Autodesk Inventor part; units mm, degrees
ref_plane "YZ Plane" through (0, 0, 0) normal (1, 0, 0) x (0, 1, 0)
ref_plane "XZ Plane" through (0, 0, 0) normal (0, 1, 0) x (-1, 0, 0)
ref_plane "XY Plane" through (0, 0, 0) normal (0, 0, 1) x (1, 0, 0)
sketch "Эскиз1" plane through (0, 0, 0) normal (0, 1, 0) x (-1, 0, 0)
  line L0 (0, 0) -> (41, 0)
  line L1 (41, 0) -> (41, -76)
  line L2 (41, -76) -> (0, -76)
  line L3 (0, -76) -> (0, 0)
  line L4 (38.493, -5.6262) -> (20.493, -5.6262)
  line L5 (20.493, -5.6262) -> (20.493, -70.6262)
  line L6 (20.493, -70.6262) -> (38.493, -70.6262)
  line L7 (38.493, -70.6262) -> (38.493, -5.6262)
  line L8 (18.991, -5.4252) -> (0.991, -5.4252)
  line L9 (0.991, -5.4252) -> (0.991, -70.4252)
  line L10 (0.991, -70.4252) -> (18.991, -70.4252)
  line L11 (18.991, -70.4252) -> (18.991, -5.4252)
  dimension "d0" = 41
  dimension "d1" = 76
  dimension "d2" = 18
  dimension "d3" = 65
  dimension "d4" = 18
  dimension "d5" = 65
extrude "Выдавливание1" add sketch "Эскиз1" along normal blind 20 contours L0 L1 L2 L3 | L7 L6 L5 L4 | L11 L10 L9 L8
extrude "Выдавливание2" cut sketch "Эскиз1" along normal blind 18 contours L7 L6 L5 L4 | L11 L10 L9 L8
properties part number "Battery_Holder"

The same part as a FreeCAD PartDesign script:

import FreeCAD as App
import Part
import Sketcher

V = App.Vector

doc = App.newDocument("Part")
body = doc.addObject("PartDesign::Body", "Body")

# Sketch on XZ plane
sketch1 = body.newObject("Sketcher::SketchObject", "Sketch")
sketch1.AttachmentSupport = (doc.getObject("XZ_Plane"), [""])
sketch1.MapMode = "FlatFace"
sketch1.addGeometry(Part.LineSegment(V(-41, 0, 0), V(0, 0, 0)), False)
sketch1.addGeometry(Part.LineSegment(V(0, 0, 0), V(0, -76, 0)), False)
sketch1.addGeometry(Part.LineSegment(V(0, -76, 0), V(-41, -76, 0)), False)
sketch1.addGeometry(Part.LineSegment(V(-41, -76, 0), V(-41, 0, 0)), False)
sketch1.addConstraint(Sketcher.Constraint("Coincident", 0, 2, 1, 1))
sketch1.addConstraint(Sketcher.Constraint("Coincident", 1, 2, 2, 1))
sketch1.addConstraint(Sketcher.Constraint("Coincident", 2, 2, 3, 1))
sketch1.addConstraint(Sketcher.Constraint("Coincident", 3, 2, 0, 1))
sketch1.addConstraint(Sketcher.Constraint("Horizontal", 0))
sketch1.addConstraint(Sketcher.Constraint("Vertical", 1))
sketch1.addConstraint(Sketcher.Constraint("Horizontal", 2))
sketch1.addConstraint(Sketcher.Constraint("Vertical", 3))
sketch1.addConstraint(Sketcher.Constraint("Coincident", 0, 2, -1, 1))
sketch1.addConstraint(Sketcher.Constraint("DistanceX", 0, 1, 0, 2, 41.0))
sketch1.addConstraint(Sketcher.Constraint("DistanceY", 1, 2, 1, 1, 76.0))
pad1 = body.newObject("PartDesign::Pad", "Pad")
pad1.Profile = sketch1
pad1.Length = 20
pad1.Reversed = True

# Sketch on XZ plane
sketch2 = body.newObject("Sketcher::SketchObject", "Sketch001")
sketch2.AttachmentSupport = (doc.getObject("XZ_Plane"), [""])
sketch2.MapMode = "FlatFace"
sketch2.addGeometry(Part.LineSegment(V(-38.493, -70.6262, 0), V(-38.493, -5.6262, 0)), False)
sketch2.addGeometry(Part.LineSegment(V(-38.493, -5.6262, 0), V(-20.493, -5.6262, 0)), False)
sketch2.addGeometry(Part.LineSegment(V(-20.493, -5.6262, 0), V(-20.493, -70.6262, 0)), False)
sketch2.addGeometry(Part.LineSegment(V(-20.493, -70.6262, 0), V(-38.493, -70.6262, 0)), False)
sketch2.addGeometry(Part.LineSegment(V(-18.991, -70.4252, 0), V(-18.991, -5.4252, 0)), False)
sketch2.addGeometry(Part.LineSegment(V(-18.991, -5.4252, 0), V(-0.991, -5.4252, 0)), False)
sketch2.addGeometry(Part.LineSegment(V(-0.991, -5.4252, 0), V(-0.991, -70.4252, 0)), False)
sketch2.addGeometry(Part.LineSegment(V(-0.991, -70.4252, 0), V(-18.991, -70.4252, 0)), False)
sketch2.addConstraint(Sketcher.Constraint("Coincident", 0, 2, 1, 1))
sketch2.addConstraint(Sketcher.Constraint("Coincident", 1, 2, 2, 1))
sketch2.addConstraint(Sketcher.Constraint("Coincident", 2, 2, 3, 1))
sketch2.addConstraint(Sketcher.Constraint("Coincident", 3, 2, 0, 1))
sketch2.addConstraint(Sketcher.Constraint("Coincident", 4, 2, 5, 1))
sketch2.addConstraint(Sketcher.Constraint("Coincident", 5, 2, 6, 1))
sketch2.addConstraint(Sketcher.Constraint("Coincident", 6, 2, 7, 1))
sketch2.addConstraint(Sketcher.Constraint("Coincident", 7, 2, 4, 1))
sketch2.addConstraint(Sketcher.Constraint("Vertical", 0))
sketch2.addConstraint(Sketcher.Constraint("Horizontal", 1))
sketch2.addConstraint(Sketcher.Constraint("Vertical", 2))
sketch2.addConstraint(Sketcher.Constraint("Horizontal", 3))
sketch2.addConstraint(Sketcher.Constraint("Vertical", 4))
sketch2.addConstraint(Sketcher.Constraint("Horizontal", 5))
sketch2.addConstraint(Sketcher.Constraint("Vertical", 6))
sketch2.addConstraint(Sketcher.Constraint("Horizontal", 7))
sketch2.addConstraint(Sketcher.Constraint("Equal", 3, 5))
sketch2.addConstraint(Sketcher.Constraint("Equal", 2, 4))
sketch2.addConstraint(Sketcher.Constraint("DistanceX", 1, 1, 1, 2, 18.0))
sketch2.addConstraint(Sketcher.Constraint("DistanceY", 0, 1, 0, 2, 65.0))
sketch2.addConstraint(Sketcher.Constraint("DistanceX", 0, 2, -1, 1, 38.493))
sketch2.addConstraint(Sketcher.Constraint("DistanceX", 4, 2, -1, 1, 18.991))
sketch2.addConstraint(Sketcher.Constraint("DistanceY", 1, 2, 4, 2, 0.201))
sketch2.addConstraint(Sketcher.Constraint("DistanceY", 0, 2, -1, 1, 5.6262))
pocket1 = body.newObject("PartDesign::Pocket", "Pocket")
pocket1.Profile = sketch2
pocket1.Length = 18

doc.recompute()
